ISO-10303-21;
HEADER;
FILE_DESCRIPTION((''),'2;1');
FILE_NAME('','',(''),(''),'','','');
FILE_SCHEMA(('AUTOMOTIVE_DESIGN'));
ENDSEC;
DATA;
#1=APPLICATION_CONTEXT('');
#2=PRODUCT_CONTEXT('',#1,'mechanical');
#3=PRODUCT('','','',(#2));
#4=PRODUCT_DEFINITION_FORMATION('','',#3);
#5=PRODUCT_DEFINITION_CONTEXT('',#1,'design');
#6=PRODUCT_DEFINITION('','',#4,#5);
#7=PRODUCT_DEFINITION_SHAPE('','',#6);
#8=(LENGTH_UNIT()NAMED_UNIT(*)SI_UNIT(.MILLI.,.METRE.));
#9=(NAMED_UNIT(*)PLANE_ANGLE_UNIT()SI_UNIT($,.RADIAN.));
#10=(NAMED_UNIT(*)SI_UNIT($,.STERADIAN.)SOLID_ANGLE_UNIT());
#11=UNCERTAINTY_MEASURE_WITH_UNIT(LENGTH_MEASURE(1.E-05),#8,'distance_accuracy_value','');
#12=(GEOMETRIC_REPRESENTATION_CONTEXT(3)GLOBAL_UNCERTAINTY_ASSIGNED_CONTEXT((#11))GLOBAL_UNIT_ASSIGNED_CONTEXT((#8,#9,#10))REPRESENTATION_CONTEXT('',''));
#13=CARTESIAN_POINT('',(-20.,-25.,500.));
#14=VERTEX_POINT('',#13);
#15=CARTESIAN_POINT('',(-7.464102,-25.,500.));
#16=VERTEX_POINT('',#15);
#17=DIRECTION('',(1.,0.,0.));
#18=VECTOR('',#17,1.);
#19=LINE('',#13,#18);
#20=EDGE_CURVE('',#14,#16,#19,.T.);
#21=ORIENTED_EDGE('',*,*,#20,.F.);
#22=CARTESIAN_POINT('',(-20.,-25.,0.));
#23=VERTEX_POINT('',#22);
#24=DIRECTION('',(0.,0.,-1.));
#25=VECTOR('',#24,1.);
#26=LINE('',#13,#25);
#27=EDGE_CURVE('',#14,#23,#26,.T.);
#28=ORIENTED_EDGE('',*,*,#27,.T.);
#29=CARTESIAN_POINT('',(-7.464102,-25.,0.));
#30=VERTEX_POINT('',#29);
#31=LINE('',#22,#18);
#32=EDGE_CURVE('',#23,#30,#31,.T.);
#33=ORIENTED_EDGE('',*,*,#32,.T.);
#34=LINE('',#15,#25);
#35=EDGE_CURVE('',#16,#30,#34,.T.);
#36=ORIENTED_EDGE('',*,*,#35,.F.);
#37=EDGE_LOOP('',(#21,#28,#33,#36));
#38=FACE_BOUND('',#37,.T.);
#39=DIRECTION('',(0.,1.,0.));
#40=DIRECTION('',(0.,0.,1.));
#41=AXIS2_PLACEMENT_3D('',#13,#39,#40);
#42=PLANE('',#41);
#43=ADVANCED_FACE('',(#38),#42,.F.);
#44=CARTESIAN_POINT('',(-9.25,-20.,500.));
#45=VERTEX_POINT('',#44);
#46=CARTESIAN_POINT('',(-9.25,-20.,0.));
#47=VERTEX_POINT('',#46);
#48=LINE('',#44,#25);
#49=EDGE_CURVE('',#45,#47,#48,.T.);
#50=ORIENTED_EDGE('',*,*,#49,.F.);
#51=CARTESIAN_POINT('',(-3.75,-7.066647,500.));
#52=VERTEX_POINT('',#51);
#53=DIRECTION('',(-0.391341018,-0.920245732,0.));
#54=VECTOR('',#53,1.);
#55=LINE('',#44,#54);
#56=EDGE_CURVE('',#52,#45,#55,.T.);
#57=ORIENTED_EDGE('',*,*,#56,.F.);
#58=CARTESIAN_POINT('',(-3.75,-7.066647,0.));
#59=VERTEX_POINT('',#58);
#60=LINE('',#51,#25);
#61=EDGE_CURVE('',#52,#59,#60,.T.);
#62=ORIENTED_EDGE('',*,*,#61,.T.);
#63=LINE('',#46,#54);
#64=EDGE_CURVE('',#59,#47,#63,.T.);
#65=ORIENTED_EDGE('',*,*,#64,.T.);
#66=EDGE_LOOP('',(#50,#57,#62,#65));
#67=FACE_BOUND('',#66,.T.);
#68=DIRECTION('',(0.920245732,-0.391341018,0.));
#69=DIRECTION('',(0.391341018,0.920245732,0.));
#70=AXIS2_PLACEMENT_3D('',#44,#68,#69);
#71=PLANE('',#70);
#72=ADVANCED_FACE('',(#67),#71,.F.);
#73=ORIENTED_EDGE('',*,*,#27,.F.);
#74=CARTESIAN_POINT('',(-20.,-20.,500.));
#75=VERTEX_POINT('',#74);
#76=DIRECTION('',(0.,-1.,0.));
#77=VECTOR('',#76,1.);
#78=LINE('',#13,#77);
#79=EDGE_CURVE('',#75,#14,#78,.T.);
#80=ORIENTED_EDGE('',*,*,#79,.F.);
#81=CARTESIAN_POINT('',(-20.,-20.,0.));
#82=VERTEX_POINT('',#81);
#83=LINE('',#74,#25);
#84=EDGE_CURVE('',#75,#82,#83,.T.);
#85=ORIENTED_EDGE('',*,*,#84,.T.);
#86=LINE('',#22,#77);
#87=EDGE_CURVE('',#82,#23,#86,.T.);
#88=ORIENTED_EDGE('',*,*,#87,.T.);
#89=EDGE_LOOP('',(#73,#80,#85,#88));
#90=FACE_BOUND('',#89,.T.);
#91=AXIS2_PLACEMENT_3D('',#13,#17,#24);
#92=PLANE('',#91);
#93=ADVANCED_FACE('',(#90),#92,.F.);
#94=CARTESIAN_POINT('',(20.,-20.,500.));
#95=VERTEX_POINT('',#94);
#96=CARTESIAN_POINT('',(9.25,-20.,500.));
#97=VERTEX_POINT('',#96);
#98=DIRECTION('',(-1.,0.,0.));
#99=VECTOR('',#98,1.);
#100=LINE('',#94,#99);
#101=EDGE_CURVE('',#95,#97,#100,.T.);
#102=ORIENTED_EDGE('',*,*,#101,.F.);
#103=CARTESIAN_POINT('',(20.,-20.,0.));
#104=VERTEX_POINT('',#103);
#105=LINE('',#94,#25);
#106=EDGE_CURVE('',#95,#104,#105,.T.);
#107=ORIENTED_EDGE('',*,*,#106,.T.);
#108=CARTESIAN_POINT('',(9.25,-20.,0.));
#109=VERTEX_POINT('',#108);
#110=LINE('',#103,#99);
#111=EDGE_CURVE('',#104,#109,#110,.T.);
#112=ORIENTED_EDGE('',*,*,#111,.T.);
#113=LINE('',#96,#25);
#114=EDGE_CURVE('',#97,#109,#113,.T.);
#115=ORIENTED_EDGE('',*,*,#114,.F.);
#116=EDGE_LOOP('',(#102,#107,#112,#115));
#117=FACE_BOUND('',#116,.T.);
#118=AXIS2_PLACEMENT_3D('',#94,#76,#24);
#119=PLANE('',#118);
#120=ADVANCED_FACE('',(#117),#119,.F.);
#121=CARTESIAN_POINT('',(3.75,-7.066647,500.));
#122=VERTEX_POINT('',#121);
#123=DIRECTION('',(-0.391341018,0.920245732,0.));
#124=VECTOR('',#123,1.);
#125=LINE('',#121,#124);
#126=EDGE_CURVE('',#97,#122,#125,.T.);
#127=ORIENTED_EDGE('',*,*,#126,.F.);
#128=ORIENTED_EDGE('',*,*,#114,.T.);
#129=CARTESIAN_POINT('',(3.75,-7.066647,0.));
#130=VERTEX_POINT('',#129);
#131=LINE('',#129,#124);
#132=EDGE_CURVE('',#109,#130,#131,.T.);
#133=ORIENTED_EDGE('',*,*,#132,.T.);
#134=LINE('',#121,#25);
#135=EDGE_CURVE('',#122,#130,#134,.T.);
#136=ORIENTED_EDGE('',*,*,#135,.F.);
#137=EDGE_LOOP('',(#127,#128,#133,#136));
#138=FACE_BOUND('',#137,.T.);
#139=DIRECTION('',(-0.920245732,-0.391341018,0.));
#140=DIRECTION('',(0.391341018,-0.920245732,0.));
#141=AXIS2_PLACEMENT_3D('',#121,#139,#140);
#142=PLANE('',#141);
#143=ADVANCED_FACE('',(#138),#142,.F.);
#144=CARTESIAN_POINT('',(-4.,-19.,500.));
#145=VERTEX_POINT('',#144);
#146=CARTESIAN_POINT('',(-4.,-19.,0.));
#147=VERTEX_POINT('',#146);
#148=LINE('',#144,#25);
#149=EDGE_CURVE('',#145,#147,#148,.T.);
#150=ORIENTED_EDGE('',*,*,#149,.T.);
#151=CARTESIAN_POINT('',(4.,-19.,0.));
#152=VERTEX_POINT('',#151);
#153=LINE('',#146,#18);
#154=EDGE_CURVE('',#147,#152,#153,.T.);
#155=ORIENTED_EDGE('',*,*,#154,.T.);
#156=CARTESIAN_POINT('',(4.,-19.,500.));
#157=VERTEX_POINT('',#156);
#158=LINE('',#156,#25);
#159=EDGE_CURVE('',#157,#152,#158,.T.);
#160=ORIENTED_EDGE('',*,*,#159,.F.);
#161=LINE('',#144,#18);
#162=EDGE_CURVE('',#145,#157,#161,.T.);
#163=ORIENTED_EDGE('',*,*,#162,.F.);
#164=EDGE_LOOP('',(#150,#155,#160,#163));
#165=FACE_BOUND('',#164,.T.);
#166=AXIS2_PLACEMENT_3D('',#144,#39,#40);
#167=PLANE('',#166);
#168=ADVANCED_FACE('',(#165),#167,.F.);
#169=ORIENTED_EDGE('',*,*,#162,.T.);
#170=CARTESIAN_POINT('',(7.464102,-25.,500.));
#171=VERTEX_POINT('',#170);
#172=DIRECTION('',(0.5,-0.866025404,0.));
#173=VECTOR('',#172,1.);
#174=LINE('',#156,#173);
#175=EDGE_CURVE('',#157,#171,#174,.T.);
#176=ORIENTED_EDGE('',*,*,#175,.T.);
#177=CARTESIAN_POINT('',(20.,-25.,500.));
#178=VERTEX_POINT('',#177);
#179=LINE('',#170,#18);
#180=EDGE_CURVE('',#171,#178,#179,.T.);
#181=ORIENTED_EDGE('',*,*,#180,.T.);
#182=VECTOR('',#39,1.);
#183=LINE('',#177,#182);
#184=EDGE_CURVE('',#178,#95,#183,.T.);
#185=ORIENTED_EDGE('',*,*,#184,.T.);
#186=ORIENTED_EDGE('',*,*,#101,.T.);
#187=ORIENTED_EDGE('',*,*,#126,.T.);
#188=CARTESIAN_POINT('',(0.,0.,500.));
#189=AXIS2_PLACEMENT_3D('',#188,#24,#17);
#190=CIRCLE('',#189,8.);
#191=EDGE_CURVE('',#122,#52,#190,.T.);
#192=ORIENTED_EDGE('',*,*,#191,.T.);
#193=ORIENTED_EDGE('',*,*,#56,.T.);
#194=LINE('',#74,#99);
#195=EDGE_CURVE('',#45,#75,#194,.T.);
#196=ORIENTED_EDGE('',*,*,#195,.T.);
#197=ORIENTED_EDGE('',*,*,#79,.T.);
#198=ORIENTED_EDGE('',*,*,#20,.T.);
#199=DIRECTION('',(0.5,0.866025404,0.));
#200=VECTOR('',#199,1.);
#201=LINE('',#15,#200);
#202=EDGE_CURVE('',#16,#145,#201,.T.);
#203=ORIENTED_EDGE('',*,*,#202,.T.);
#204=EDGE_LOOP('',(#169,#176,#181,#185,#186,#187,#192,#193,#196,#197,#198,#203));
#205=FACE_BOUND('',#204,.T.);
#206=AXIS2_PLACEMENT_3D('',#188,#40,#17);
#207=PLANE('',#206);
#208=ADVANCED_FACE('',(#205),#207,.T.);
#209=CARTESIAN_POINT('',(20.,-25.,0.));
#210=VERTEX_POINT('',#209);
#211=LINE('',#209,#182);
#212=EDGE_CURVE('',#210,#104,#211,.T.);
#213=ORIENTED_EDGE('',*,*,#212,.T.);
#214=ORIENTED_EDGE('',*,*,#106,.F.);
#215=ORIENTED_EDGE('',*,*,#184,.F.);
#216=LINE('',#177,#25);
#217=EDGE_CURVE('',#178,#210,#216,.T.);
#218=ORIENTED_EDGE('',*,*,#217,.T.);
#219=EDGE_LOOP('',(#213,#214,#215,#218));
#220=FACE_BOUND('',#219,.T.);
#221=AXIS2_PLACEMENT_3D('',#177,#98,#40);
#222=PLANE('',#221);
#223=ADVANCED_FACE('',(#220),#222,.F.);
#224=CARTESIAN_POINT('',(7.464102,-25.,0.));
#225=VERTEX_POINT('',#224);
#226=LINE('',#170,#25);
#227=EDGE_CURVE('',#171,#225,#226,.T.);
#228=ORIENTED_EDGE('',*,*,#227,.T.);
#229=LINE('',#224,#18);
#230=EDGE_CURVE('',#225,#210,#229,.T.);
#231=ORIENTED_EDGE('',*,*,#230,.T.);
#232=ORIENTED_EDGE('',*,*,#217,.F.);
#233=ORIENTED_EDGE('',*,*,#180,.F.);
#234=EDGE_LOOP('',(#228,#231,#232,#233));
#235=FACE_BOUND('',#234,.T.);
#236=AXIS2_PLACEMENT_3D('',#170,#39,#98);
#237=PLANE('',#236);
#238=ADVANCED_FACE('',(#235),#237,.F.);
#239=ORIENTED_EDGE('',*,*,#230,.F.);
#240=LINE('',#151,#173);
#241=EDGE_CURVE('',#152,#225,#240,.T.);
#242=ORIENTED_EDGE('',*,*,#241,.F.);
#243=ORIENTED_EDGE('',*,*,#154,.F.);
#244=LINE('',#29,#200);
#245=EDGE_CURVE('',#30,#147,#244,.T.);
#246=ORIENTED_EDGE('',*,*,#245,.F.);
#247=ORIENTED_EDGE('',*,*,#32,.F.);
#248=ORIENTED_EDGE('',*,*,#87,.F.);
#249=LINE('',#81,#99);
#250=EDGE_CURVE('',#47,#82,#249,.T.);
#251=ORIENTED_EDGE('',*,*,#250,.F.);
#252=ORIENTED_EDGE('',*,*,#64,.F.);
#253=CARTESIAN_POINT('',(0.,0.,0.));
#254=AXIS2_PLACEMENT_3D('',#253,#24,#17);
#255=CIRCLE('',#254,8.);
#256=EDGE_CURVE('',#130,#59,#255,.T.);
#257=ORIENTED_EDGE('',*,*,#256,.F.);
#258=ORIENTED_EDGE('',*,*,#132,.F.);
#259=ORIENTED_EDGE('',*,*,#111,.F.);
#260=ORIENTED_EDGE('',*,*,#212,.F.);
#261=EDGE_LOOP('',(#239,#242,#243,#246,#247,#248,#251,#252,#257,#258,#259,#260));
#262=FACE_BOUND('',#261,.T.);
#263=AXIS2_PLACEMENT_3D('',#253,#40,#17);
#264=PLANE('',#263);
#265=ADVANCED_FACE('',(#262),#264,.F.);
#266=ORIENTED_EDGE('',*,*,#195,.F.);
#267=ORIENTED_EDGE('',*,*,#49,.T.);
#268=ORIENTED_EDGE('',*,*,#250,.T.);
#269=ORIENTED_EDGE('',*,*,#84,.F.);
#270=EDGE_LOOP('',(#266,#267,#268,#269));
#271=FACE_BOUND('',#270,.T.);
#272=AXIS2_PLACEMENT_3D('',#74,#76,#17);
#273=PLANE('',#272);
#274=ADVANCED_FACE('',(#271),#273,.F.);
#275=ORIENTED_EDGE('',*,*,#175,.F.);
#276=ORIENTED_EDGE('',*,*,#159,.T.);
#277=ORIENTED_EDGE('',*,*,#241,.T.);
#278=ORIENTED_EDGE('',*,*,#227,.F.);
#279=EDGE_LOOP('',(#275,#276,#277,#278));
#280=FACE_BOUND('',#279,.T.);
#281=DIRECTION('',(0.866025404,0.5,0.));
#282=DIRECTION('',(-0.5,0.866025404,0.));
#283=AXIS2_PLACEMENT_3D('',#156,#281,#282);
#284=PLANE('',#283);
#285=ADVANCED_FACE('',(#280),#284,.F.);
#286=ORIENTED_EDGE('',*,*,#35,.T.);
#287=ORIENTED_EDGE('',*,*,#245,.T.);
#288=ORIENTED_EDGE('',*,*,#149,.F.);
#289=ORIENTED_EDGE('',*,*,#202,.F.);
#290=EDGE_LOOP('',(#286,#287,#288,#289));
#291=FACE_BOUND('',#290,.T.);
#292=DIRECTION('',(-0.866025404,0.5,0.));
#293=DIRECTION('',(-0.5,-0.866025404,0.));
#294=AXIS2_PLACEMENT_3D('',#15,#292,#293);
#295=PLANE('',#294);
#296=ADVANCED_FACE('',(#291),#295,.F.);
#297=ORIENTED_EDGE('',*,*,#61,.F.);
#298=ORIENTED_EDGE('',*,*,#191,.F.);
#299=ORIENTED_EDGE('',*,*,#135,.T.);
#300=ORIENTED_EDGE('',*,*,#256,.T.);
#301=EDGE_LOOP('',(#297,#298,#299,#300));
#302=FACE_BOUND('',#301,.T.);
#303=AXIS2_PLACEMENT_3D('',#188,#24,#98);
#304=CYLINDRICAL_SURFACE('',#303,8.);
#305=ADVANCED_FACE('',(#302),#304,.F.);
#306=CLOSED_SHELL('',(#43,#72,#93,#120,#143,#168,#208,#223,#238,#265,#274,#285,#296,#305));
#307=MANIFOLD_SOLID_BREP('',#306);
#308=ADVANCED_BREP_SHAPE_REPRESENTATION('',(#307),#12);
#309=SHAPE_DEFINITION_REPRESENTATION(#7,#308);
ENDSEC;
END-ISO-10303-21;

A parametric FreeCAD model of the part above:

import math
import FreeCAD as App
import Part
import Sketcher
from FreeCAD import Vector
Q = App.Units.Quantity

doc = App.newDocument("Part")
params = doc.addObject("Spreadsheet::Sheet", "Params")
for row, (alias, value) in enumerate([
    ("sketch1_radius", "8 mm"),
    ("sketch1_width", "8 mm"),
    ("sketch1_height", "5 mm"),
    ("sketch1_width2", "10.75 mm"),
    ("pad1_length", "500 mm"),
], start=1):
    params.set(f"A{row}", alias)
    params.set(f"B{row}", "=" + value)
    params.setAlias(f"B{row}", alias)

body = doc.addObject("PartDesign::Body", "Body")

# Sketch on XY plane
sketch1 = body.newObject("Sketcher::SketchObject", "Sketch")
sketch1.AttachmentSupport = (doc.getObject("XY_Plane"), [""])
sketch1.MapMode = "FlatFace"
sketch1.addGeometry(Part.LineSegment(Vector(-20, -25, 0), Vector(-7.464102, -25, 0)), False)
sketch1.addGeometry(Part.LineSegment(Vector(-7.464102, -25, 0), Vector(-4, -19, 0)), False)
sketch1.addGeometry(Part.LineSegment(Vector(-4, -19, 0), Vector(4, -19, 0)), False)
sketch1.addGeometry(Part.LineSegment(Vector(4, -19, 0), Vector(7.464102, -25, 0)), False)
sketch1.addGeometry(Part.LineSegment(Vector(7.464102, -25, 0), Vector(20, -25, 0)), False)
sketch1.addGeometry(Part.LineSegment(Vector(20, -25, 0), Vector(20, -20, 0)), False)
sketch1.addGeometry(Part.LineSegment(Vector(20, -20, 0), Vector(9.25, -20, 0)), False)
sketch1.addGeometry(Part.LineSegment(Vector(9.25, -20, 0), Vector(3.75, -7.066647, 0)), False)
sketch1.addGeometry(Part.ArcOfCircle(Part.Circle(Vector(0, 0, 0), Vector(0, 0, 1), 8), math.radians(-117.953187), math.radians(-62.046813)), False)
sketch1.addGeometry(Part.LineSegment(Vector(-3.75, -7.066647, 0), Vector(-9.25, -20, 0)), False)
sketch1.addGeometry(Part.LineSegment(Vector(-9.25, -20, 0), Vector(-20, -20, 0)), False)
sketch1.addGeometry(Part.LineSegment(Vector(-20, -20, 0), Vector(-20, -25, 0)), False)
sketch1.addConstraint(Sketcher.Constraint("Coincident", 0, 2, 1, 1))
sketch1.addConstraint(Sketcher.Constraint("Coincident", 1, 2, 2, 1))
sketch1.addConstraint(Sketcher.Constraint("Coincident", 2, 2, 3, 1))
sketch1.addConstraint(Sketcher.Constraint("Coincident", 3, 2, 4, 1))
sketch1.addConstraint(Sketcher.Constraint("Coincident", 4, 2, 5, 1))
sketch1.addConstraint(Sketcher.Constraint("Coincident", 5, 2, 6, 1))
sketch1.addConstraint(Sketcher.Constraint("Coincident", 6, 2, 7, 1))
sketch1.addConstraint(Sketcher.Constraint("Coincident", 7, 2, 8, 2))
sketch1.addConstraint(Sketcher.Constraint("Coincident", 8, 1, 9, 1))
sketch1.addConstraint(Sketcher.Constraint("Coincident", 9, 2, 10, 1))
sketch1.addConstraint(Sketcher.Constraint("Coincident", 10, 2, 11, 1))
sketch1.addConstraint(Sketcher.Constraint("Coincident", 11, 2, 0, 1))
sketch1.addConstraint(Sketcher.Constraint("Horizontal", 0))
sketch1.addConstraint(Sketcher.Constraint("Horizontal", 2))
sketch1.addConstraint(Sketcher.Constraint("Horizontal", 4))
sketch1.addConstraint(Sketcher.Constraint("Vertical", 5))
sketch1.addConstraint(Sketcher.Constraint("Horizontal", 6))
sketch1.addConstraint(Sketcher.Constraint("Horizontal", 10))
sketch1.addConstraint(Sketcher.Constraint("Vertical", 11))
sketch1.addConstraint(Sketcher.Constraint("Coincident", 8, 3, -1, 1))
sketch1.addConstraint(Sketcher.Constraint("Symmetric", 0, 2, 3, 2, -2))
sketch1.addConstraint(Sketcher.Constraint("Symmetric", 6, 2, 9, 2, -2))
sketch1.addConstraint(Sketcher.Constraint("Horizontal", 7, 2, 8, 1))
sketch1.addConstraint(Sketcher.Constraint("Equal", 0, 4))
sketch1.addConstraint(Sketcher.Constraint("Equal", 1, 3))
sketch1.addConstraint(Sketcher.Constraint("Radius", 8, Q("8 mm")))
sketch1.addConstraint(Sketcher.Constraint("DistanceX", 2, 1, 2, 2, Q("8 mm")))
sketch1.addConstraint(Sketcher.Constraint("DistanceY", 5, 1, 5, 2, Q("5 mm")))
sketch1.addConstraint(Sketcher.Constraint("Angle", 1, Q("60 deg")))
sketch1.addConstraint(Sketcher.Constraint("DistanceY", 0, 2, -1, 1, Q("25 mm")))
sketch1.addConstraint(Sketcher.Constraint("DistanceY", 1, 2, -1, 1, Q("19 mm")))
sketch1.addConstraint(Sketcher.Constraint("DistanceX", -1, 1, 4, 2, Q("20 mm")))
sketch1.addConstraint(Sketcher.Constraint("DistanceX", 6, 2, 6, 1, Q("10.75 mm")))
sketch1.addConstraint(Sketcher.Constraint("DistanceX", 7, 2, 6, 2, Q("5.5 mm")))
sketch1.setExpression("Constraints[25]", "Params.sketch1_radius")
sketch1.setExpression("Constraints[26]", "Params.sketch1_width")
sketch1.setExpression("Constraints[27]", "Params.sketch1_height")
sketch1.setExpression("Constraints[32]", "Params.sketch1_width2")
pad1 = body.newObject("PartDesign::Pad", "Pad")
pad1.Profile = sketch1
pad1.setExpression("Length", "Params.pad1_length")

doc.recompute()
